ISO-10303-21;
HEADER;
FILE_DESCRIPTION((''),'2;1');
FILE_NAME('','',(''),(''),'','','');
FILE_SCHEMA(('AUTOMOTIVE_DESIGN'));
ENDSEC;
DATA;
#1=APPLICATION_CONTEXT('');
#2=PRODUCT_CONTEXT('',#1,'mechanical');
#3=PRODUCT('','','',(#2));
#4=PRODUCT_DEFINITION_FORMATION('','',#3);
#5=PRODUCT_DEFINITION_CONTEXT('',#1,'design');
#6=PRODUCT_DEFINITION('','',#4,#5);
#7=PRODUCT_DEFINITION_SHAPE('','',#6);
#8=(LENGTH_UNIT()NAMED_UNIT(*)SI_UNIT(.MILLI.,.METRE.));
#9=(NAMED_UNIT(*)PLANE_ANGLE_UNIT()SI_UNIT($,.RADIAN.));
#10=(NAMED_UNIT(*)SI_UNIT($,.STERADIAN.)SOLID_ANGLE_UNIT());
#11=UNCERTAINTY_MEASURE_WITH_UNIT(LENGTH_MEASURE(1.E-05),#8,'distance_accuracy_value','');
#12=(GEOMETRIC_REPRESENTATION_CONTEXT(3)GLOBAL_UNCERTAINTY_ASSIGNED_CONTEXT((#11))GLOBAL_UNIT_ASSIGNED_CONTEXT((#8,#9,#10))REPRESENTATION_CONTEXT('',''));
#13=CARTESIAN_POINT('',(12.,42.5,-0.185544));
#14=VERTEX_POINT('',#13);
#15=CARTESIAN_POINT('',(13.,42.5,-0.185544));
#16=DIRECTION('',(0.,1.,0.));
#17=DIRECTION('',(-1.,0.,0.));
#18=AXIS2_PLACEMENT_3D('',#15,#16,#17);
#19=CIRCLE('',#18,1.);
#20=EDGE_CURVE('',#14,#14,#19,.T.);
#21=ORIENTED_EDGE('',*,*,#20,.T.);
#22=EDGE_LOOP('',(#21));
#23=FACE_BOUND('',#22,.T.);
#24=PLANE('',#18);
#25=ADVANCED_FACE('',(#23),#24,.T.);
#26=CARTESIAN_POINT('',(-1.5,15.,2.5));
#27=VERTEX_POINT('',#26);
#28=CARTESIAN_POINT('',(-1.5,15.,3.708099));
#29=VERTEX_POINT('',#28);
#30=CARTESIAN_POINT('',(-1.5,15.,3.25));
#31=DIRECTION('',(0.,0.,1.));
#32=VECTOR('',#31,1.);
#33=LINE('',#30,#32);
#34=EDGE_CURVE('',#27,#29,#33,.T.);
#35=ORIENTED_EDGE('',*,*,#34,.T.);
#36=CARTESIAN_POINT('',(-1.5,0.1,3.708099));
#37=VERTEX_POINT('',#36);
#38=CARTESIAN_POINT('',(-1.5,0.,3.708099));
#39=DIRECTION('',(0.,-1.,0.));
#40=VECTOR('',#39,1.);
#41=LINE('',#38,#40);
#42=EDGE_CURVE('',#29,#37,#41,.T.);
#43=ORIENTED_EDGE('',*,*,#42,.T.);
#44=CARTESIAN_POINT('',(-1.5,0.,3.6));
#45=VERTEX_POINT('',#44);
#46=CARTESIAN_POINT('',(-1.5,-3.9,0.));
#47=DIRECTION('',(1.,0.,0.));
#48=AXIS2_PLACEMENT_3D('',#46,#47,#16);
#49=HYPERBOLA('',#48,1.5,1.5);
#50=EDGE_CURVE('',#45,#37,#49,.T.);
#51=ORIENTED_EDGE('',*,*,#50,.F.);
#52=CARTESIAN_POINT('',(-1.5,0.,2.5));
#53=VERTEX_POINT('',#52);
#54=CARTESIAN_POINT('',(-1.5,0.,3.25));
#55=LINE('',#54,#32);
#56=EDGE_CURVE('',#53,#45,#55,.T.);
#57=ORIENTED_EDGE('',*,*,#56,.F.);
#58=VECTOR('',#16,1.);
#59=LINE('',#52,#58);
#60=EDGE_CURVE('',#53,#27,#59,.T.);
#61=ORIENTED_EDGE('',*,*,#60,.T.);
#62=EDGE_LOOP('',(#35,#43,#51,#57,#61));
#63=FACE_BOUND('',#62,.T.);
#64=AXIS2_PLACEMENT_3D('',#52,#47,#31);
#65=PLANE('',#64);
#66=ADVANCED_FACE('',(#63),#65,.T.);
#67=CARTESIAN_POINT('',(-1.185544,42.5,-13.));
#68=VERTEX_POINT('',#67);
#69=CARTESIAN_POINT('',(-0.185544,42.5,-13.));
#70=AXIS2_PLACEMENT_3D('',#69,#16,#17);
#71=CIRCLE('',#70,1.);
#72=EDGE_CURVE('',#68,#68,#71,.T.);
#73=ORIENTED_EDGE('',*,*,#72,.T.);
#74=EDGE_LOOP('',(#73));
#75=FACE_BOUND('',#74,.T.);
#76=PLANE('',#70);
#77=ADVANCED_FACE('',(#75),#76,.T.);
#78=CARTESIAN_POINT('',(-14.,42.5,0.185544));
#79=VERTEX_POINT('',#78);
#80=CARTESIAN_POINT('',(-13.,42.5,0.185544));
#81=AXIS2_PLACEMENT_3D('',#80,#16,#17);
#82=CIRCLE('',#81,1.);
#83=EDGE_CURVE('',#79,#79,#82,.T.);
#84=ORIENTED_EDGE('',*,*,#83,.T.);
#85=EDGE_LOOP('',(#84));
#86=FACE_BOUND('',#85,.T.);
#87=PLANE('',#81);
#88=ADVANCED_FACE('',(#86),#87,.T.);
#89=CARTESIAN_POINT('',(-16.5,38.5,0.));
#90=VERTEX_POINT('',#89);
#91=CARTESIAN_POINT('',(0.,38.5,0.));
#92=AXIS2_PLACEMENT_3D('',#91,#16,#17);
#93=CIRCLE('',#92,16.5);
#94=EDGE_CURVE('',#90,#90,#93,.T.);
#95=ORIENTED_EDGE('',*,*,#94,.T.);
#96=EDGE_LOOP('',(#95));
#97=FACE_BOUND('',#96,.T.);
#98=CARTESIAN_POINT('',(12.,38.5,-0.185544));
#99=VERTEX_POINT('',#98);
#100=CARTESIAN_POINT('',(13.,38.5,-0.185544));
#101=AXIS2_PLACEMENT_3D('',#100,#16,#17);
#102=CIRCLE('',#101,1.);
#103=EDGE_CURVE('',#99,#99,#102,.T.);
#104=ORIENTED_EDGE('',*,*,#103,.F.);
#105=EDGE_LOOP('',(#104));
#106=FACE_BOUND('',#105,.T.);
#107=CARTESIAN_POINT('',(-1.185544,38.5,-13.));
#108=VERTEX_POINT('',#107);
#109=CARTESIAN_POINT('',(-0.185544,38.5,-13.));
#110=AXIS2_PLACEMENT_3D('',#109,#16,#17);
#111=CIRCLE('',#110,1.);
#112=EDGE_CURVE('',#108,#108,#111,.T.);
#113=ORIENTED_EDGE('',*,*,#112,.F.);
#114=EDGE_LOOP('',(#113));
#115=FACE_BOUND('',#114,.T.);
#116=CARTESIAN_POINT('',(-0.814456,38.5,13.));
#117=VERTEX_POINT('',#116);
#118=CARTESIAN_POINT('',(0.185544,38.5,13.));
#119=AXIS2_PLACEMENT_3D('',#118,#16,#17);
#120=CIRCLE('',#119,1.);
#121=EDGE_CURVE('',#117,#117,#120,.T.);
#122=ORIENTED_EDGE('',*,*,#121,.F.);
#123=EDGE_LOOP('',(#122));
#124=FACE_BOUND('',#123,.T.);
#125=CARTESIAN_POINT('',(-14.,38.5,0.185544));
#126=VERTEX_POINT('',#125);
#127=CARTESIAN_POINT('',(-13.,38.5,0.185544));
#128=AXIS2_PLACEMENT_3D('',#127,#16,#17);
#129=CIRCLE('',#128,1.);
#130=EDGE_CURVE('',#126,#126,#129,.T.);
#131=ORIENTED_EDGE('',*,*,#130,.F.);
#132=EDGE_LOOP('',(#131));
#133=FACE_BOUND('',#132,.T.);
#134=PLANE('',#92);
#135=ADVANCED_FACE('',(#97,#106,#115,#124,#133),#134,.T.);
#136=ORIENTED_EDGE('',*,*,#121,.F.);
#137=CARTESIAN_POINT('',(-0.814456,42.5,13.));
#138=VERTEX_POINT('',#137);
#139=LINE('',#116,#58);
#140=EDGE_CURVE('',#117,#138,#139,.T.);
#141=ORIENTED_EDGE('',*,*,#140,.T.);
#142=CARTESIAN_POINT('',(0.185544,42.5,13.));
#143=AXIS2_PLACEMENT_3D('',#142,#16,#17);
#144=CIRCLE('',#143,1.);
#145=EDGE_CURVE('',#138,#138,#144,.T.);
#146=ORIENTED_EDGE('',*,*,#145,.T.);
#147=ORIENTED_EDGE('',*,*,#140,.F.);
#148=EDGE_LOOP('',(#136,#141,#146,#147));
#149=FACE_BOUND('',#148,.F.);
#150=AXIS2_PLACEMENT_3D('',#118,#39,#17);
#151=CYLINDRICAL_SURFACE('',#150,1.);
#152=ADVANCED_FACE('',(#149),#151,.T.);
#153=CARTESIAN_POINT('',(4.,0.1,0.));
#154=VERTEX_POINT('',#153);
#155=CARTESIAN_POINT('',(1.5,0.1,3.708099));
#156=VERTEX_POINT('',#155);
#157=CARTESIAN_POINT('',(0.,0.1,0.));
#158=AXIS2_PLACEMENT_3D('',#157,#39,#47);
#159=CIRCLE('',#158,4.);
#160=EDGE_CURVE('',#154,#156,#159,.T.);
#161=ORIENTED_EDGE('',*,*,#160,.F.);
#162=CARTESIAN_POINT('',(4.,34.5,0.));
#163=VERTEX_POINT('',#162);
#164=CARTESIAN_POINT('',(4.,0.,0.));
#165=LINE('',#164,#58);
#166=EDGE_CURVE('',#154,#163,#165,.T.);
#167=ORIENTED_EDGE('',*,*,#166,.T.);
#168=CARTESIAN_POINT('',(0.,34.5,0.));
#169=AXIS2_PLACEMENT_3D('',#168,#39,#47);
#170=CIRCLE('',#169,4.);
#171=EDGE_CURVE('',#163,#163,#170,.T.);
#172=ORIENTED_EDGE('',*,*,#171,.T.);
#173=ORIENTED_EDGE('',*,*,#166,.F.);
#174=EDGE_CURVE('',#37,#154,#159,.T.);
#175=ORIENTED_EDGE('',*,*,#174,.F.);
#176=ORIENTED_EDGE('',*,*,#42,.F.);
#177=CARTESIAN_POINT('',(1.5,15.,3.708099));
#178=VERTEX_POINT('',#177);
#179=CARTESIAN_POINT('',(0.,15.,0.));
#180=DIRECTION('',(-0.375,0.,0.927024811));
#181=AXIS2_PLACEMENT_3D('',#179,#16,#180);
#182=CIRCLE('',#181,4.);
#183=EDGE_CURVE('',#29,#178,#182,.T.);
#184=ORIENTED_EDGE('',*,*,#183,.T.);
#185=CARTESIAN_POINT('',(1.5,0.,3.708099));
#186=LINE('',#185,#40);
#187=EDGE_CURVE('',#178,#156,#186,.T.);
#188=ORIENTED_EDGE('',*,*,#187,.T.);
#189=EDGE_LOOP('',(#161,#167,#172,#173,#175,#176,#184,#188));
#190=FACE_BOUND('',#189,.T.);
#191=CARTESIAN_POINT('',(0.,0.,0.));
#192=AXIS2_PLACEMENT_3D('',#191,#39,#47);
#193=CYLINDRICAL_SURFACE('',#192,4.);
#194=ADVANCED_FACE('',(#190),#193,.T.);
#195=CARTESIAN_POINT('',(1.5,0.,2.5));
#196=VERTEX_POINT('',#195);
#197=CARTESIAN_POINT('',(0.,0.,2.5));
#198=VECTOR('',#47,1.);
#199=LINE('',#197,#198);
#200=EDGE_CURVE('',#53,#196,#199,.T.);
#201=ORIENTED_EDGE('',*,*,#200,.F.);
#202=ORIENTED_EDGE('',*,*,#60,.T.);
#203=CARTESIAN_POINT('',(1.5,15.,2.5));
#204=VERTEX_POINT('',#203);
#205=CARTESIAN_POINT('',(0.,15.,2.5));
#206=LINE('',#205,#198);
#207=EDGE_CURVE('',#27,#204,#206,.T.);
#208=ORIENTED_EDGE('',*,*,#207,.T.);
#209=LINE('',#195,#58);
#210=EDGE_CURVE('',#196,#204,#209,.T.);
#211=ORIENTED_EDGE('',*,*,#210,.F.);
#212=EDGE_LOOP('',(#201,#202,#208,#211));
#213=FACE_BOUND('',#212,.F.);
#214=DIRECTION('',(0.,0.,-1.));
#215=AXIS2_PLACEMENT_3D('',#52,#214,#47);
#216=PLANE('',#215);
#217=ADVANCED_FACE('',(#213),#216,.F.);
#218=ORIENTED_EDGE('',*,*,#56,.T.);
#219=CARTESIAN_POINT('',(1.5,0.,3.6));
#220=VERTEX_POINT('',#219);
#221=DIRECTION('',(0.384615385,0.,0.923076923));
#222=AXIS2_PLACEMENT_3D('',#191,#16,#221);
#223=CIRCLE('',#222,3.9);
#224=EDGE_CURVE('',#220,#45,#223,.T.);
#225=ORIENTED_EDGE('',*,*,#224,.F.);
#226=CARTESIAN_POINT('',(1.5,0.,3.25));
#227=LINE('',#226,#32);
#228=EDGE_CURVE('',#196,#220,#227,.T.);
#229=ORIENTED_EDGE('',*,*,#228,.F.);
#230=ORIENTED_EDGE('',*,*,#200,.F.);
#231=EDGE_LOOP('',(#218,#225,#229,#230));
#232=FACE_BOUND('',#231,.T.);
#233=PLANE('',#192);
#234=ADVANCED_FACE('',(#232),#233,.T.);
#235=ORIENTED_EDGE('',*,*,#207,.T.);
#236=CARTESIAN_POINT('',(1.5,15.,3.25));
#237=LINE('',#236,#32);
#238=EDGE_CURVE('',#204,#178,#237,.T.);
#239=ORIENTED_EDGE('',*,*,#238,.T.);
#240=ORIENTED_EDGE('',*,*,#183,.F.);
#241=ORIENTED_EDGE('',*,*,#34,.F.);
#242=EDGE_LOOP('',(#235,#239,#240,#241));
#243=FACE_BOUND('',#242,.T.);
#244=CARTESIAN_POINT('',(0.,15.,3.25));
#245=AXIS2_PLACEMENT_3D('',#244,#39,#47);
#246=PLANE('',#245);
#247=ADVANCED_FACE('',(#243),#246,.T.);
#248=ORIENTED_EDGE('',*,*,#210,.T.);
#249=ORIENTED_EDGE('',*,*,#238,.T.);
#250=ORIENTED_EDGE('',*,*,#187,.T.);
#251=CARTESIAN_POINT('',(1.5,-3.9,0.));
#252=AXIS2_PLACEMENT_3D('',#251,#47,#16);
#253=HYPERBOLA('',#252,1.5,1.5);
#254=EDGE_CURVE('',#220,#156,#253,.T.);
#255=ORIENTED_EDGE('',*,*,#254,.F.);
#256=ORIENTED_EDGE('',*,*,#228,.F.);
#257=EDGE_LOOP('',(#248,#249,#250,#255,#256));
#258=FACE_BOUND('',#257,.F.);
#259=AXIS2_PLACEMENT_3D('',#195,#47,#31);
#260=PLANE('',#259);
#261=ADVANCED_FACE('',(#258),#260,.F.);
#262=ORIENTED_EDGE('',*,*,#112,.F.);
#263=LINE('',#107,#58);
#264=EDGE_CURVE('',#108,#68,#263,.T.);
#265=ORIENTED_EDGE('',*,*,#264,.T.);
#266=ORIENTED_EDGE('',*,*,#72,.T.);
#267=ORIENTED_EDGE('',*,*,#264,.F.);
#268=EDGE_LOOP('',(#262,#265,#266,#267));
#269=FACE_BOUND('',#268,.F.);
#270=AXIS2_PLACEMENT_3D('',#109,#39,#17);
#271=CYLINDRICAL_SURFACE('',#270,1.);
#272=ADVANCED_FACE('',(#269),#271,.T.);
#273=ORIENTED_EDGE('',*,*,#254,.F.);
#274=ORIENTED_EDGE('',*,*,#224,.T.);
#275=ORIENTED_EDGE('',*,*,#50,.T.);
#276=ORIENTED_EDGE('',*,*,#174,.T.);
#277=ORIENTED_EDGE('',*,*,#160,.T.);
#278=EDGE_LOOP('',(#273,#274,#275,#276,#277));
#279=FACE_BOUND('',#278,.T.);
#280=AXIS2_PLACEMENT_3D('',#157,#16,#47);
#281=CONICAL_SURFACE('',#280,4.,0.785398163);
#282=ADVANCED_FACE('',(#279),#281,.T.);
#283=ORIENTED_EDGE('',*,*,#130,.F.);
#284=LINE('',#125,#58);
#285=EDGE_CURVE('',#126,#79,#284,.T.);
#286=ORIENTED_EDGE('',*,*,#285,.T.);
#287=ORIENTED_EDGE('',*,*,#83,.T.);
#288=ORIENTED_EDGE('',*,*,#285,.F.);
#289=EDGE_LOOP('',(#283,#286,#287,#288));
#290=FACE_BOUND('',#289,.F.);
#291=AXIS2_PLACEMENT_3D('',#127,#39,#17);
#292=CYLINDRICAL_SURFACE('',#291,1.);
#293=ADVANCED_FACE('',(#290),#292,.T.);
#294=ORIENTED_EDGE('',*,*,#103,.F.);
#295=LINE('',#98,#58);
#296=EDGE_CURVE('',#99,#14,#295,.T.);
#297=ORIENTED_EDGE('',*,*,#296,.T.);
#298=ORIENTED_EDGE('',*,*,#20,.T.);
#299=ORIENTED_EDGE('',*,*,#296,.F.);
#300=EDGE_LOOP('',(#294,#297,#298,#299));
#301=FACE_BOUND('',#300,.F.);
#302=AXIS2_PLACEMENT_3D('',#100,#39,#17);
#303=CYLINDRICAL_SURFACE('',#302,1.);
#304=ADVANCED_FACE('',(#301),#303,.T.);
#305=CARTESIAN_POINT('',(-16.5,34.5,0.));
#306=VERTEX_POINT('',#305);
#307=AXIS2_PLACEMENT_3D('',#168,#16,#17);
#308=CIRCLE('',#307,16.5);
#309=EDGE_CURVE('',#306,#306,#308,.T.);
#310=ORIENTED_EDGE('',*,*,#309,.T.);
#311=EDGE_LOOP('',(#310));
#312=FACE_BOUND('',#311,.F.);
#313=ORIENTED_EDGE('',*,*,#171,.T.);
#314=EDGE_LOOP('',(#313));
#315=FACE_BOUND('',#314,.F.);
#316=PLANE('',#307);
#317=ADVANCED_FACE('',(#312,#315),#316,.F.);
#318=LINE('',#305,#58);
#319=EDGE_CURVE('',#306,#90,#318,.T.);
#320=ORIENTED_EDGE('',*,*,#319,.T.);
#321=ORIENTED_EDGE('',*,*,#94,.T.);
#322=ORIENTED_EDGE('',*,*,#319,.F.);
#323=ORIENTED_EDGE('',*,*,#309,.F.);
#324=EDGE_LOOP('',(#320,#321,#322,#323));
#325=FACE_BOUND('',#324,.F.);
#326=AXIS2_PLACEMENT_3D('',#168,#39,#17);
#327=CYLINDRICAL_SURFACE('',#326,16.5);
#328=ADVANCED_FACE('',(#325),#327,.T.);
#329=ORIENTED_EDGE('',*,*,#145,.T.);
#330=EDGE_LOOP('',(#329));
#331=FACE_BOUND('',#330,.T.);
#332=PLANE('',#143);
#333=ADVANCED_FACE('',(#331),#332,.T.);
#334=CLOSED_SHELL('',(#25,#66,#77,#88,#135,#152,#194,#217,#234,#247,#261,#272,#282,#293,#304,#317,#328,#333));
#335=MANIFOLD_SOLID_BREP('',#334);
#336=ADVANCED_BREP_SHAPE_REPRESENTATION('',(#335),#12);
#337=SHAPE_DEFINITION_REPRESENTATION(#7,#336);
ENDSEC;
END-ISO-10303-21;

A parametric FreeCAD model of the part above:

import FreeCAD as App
import Part
import Sketcher


def edges_at(feature, points):
    """Names of the edges that pass closest to the given points."""
    edges = feature.Shape.Edges
    near = lambda p: min(range(len(edges)), key=lambda i: edges[i].distToShape(Part.Vertex(*p))[0])
    return sorted({f"Edge{near(p) + 1}" for p in points})

doc = App.newDocument("Part")
body = doc.addObject("PartDesign::Body", "Body")

# Sketch on XZ plane
sketch1 = body.newObject("Sketcher::SketchObject", "Sketch")
sketch1.AttachmentSupport = (doc.getObject("XZ_Plane"), [""])
sketch1.MapMode = "FlatFace"
sketch1.addGeometry(Part.Circle(App.Vector(0, 0, 0), App.Vector(0, 0, 1), 4), False)
sketch1.addConstraint([
    Sketcher.Constraint("Coincident", 0, 3, -1, 1),
    Sketcher.Constraint("Diameter", 0, 8.0),
])
pad1 = body.newObject("PartDesign::Pad", "Pad")
pad1.Profile = sketch1
pad1.Length = 34.5
pad1.Reversed = True
doc.recompute()

chamfer = body.newObject("PartDesign::Chamfer", "Chamfer")
chamfer.Base = (pad1, edges_at(pad1, [(-4, 0, 0)]))
chamfer.Size = 0.1

# Sketch on XZ plane
sketch2 = body.newObject("Sketcher::SketchObject", "Sketch001")
sketch2.AttachmentSupport = (doc.getObject("XZ_Plane"), [""])
sketch2.MapMode = "FlatFace"
sketch2.addGeometry([
    Part.LineSegment(App.Vector(-1.5, 4, 0), App.Vector(-1.5, 2.5, 0)),
    Part.LineSegment(App.Vector(-1.5, 2.5, 0), App.Vector(1.5, 2.5, 0)),
    Part.LineSegment(App.Vector(1.5, 2.5, 0), App.Vector(1.5, 4, 0)),
    Part.LineSegment(App.Vector(1.5, 4, 0), App.Vector(-1.5, 4, 0)),
], False)
sketch2.addConstraint([
    Sketcher.Constraint("Coincident", 0, 2, 1, 1),
    Sketcher.Constraint("Coincident", 1, 2, 2, 1),
    Sketcher.Constraint("Coincident", 2, 2, 3, 1),
    Sketcher.Constraint("Coincident", 3, 2, 0, 1),
    Sketcher.Constraint("Vertical", 0),
    Sketcher.Constraint("Horizontal", 1),
    Sketcher.Constraint("Vertical", 2),
    Sketcher.Constraint("Horizontal", 3),
    Sketcher.Constraint("DistanceX", 1, 1, 1, 2, 3.0),
    Sketcher.Constraint("DistanceY", 0, 2, 0, 1, 1.5),
    Sketcher.Constraint("DistanceY", -1, 1, 2, 2, 4.0),
    Sketcher.Constraint("DistanceX", 0, 2, -1, 1, 1.5),
])
pocket1 = body.newObject("PartDesign::Pocket", "Pocket")
pocket1.Profile = sketch2
pocket1.Length = 15

# Sketch on XZ plane
sketch3 = body.newObject("Sketcher::SketchObject", "Sketch002")
sketch3.AttachmentSupport = (doc.getObject("XZ_Plane"), [""])
sketch3.MapMode = "FlatFace"
sketch3.AttachmentOffset = App.Placement(App.Vector(0, 0, -34.5), App.Rotation())
sketch3.addGeometry(Part.Circle(App.Vector(0, 0, 0), App.Vector(0, 0, 1), 16), False)
sketch3.addConstraint([
    Sketcher.Constraint("Coincident", 0, 3, -1, 1),
    Sketcher.Constraint("Diameter", 0, 33.0),
])
pad2 = body.newObject("PartDesign::Pad", "Pad001")
pad2.Profile = sketch3
pad2.Length = 4
pad2.Reversed = True

# Sketch on XZ plane
sketch4 = body.newObject("Sketcher::SketchObject", "Sketch003")
sketch4.AttachmentSupport = (doc.getObject("XZ_Plane"), [""])
sketch4.MapMode = "FlatFace"
sketch4.AttachmentOffset = App.Placement(App.Vector(0, 0, -38.5), App.Rotation())
sketch4.addGeometry([
    Part.Circle(App.Vector(0.2, 13, 0), App.Vector(0, 0, 1), 1),
    Part.Circle(App.Vector(13, -0.2, 0), App.Vector(0, 0, 1), 1),
    Part.Circle(App.Vector(-0.2, -13, 0), App.Vector(0, 0, 1), 1),
    Part.Circle(App.Vector(-13, 0.2, 0), App.Vector(0, 0, 1), 1),
], False)
sketch4.addConstraint([
    Sketcher.Constraint("Equal", 0, 1),
    Sketcher.Constraint("Equal", 1, 2),
    Sketcher.Constraint("Equal", 2, 3),
    Sketcher.Constraint("Symmetric", 0, 3, 2, 3, -1, 1),
    Sketcher.Constraint("Symmetric", 1, 3, 3, 3, -1, 1),
    Sketcher.Constraint("Diameter", 0, 2.0),
    Sketcher.Constraint("DistanceY", -1, 1, 0, 3, 13.0),
    Sketcher.Constraint("DistanceX", -1, 1, 1, 3, 13.0),
    Sketcher.Constraint("DistanceX", -1, 1, 0, 3, 0.185544),
    Sketcher.Constraint("DistanceY", 1, 3, -1, 1, 0.185544),
])
pad3 = body.newObject("PartDesign::Pad", "Pad002")
pad3.Profile = sketch4
pad3.Length = 4
pad3.Reversed = True

doc.recompute()
